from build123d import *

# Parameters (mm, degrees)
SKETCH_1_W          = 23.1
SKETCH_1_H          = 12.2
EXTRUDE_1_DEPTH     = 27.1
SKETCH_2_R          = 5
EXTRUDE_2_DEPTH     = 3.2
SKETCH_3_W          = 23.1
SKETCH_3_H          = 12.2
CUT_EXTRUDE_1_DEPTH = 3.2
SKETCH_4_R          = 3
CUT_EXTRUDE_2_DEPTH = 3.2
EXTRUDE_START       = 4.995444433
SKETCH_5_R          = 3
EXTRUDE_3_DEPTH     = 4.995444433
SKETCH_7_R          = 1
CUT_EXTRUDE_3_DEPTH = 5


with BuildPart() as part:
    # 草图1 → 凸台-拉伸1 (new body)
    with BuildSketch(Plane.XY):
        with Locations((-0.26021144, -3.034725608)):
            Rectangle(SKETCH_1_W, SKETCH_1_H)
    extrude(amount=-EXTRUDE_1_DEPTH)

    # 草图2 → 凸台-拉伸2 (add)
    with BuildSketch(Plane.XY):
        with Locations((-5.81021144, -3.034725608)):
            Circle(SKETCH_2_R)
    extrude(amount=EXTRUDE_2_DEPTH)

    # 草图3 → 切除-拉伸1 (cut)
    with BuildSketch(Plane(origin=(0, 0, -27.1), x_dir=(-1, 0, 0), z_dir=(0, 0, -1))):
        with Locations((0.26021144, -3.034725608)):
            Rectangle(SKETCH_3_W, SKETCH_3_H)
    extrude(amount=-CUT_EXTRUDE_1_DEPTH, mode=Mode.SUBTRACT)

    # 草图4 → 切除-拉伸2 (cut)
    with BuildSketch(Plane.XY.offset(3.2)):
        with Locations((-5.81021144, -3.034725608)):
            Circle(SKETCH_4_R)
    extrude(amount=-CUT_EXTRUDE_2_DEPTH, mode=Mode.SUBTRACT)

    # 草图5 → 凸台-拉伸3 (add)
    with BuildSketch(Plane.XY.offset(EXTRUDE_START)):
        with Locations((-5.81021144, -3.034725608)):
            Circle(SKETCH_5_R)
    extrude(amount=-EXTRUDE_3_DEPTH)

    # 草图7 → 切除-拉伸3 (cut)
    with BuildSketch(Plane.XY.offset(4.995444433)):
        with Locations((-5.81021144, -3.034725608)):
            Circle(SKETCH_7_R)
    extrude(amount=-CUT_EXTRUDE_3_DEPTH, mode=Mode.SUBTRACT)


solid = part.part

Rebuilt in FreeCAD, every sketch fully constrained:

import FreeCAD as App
import Part
import Sketcher
Q = App.Units.Quantity

doc = App.newDocument("Part")
body = doc.addObject("PartDesign::Body", "Body")

# Sketch on XY plane
sketch1 = doc.addObject("Sketcher::SketchObject", "Sketch")
body.addObject(sketch1)
sketch1.AttachmentSupport = (doc.XY_Plane, [""])
sketch1.MapMode = "FlatFace"
sketch1.addGeometry(Part.LineSegment(App.Vector(-11.810211, 3.065274, 0), App.Vector(-11.810211, -9.134726, 0)), False)
sketch1.addGeometry(Part.LineSegment(App.Vector(-11.810211, -9.134726, 0), App.Vector(11.289789, -9.134726, 0)), False)
sketch1.addGeometry(Part.LineSegment(App.Vector(11.289789, -9.134726, 0), App.Vector(11.289789, 3.065274, 0)), False)
sketch1.addGeometry(Part.LineSegment(App.Vector(11.289789, 3.065274, 0), App.Vector(-11.810211, 3.065274, 0)), False)
sketch1.addConstraint(Sketcher.Constraint("Coincident", 0, 2, 1, 1))
sketch1.addConstraint(Sketcher.Constraint("Coincident", 1, 2, 2, 1))
sketch1.addConstraint(Sketcher.Constraint("Coincident", 2, 2, 3, 1))
sketch1.addConstraint(Sketcher.Constraint("Coincident", 3, 2, 0, 1))
sketch1.addConstraint(Sketcher.Constraint("Vertical", 0))
sketch1.addConstraint(Sketcher.Constraint("Horizontal", 1))
sketch1.addConstraint(Sketcher.Constraint("Vertical", 2))
sketch1.addConstraint(Sketcher.Constraint("Horizontal", 3))
sketch1.addConstraint(Sketcher.Constraint("DistanceX", 1, 1, 1, 2, Q("23.1 mm")))
sketch1.addConstraint(Sketcher.Constraint("DistanceY", 0, 2, 0, 1, Q("12.2 mm")))
sketch1.addConstraint(Sketcher.Constraint("DistanceX", 0, 2, -1, 1, Q("11.810211 mm")))
sketch1.addConstraint(Sketcher.Constraint("DistanceY", 0, 2, -1, 1, Q("9.134726 mm")))
pad1 = doc.addObject("PartDesign::Pad", "Pad")
body.addObject(pad1)
pad1.Profile = sketch1
pad1.Length = 27.1
pad1.Reversed = True

# Sketch on XY plane
sketch2 = doc.addObject("Sketcher::SketchObject", "Sketch001")
body.addObject(sketch2)
sketch2.AttachmentSupport = (doc.XY_Plane, [""])
sketch2.MapMode = "FlatFace"
sketch2.addGeometry(Part.Circle(App.Vector(-5.810211, -3.034726, 0), App.Vector(0, 0, 1), 5), False)
sketch2.addConstraint(Sketcher.Constraint("Diameter", 0, Q("10 mm")))
sketch2.addConstraint(Sketcher.Constraint("DistanceX", 0, 3, -1, 1, Q("5.810211 mm")))
sketch2.addConstraint(Sketcher.Constraint("DistanceY", 0, 3, -1, 1, Q("3.034726 mm")))
pad2 = doc.addObject("PartDesign::Pad", "Pad001")
body.addObject(pad2)
pad2.Profile = sketch2
pad2.Length = 3.2

# Sketch on XY plane
sketch3 = doc.addObject("Sketcher::SketchObject", "Sketch002")
body.addObject(sketch3)
sketch3.AttachmentSupport = (doc.XY_Plane, [""])
sketch3.MapMode = "FlatFace"
sketch3.AttachmentOffset = App.Placement(App.Vector(0, 0, -27.1), App.Rotation())
sketch3.addGeometry(Part.LineSegment(App.Vector(11.289789, 3.065274, 0), App.Vector(11.289789, -9.134726, 0)), False)
sketch3.addGeometry(Part.LineSegment(App.Vector(11.289789, -9.134726, 0), App.Vector(-11.810211, -9.134726, 0)), False)
sketch3.addGeometry(Part.LineSegment(App.Vector(-11.810211, -9.134726, 0), App.Vector(-11.810211, 3.065274, 0)), False)
sketch3.addGeometry(Part.LineSegment(App.Vector(-11.810211, 3.065274, 0), App.Vector(11.289789, 3.065274, 0)), False)
sketch3.addConstraint(Sketcher.Constraint("Coincident", 0, 2, 1, 1))
sketch3.addConstraint(Sketcher.Constraint("Coincident", 1, 2, 2, 1))
sketch3.addConstraint(Sketcher.Constraint("Coincident", 2, 2, 3, 1))
sketch3.addConstraint(Sketcher.Constraint("Coincident", 3, 2, 0, 1))
sketch3.addConstraint(Sketcher.Constraint("Vertical", 0))
sketch3.addConstraint(Sketcher.Constraint("Horizontal", 1))
sketch3.addConstraint(Sketcher.Constraint("Vertical", 2))
sketch3.addConstraint(Sketcher.Constraint("Horizontal", 3))
sketch3.addConstraint(Sketcher.Constraint("DistanceX", 1, 2, 1, 1, Q("23.1 mm")))
sketch3.addConstraint(Sketcher.Constraint("DistanceY", 0, 2, 0, 1, Q("12.2 mm")))
sketch3.addConstraint(Sketcher.Constraint("DistanceX", -1, 1, 0, 2, Q("11.289789 mm")))
sketch3.addConstraint(Sketcher.Constraint("DistanceY", 0, 2, -1, 1, Q("9.134726 mm")))
pocket1 = doc.addObject("PartDesign::Pocket", "Pocket")
body.addObject(pocket1)
pocket1.Profile = sketch3
pocket1.Length = 3.2
pocket1.Reversed = True

# Sketch on XY plane
sketch4 = doc.addObject("Sketcher::SketchObject", "Sketch003")
body.addObject(sketch4)
sketch4.AttachmentSupport = (doc.XY_Plane, [""])
sketch4.MapMode = "FlatFace"
sketch4.AttachmentOffset = App.Placement(App.Vector(0, 0, 3.2), App.Rotation())
sketch4.addGeometry(Part.Circle(App.Vector(-5.810211, -3.034726, 0), App.Vector(0, 0, 1), 3), False)
sketch4.addConstraint(Sketcher.Constraint("Diameter", 0, Q("6 mm")))
sketch4.addConstraint(Sketcher.Constraint("DistanceX", 0, 3, -1, 1, Q("5.810211 mm")))
sketch4.addConstraint(Sketcher.Constraint("DistanceY", 0, 3, -1, 1, Q("3.034726 mm")))
pocket2 = doc.addObject("PartDesign::Pocket", "Pocket001")
body.addObject(pocket2)
pocket2.Profile = sketch4
pocket2.Length = 3.2

# Sketch on XY plane
sketch5 = doc.addObject("Sketcher::SketchObject", "Sketch004")
body.addObject(sketch5)
sketch5.AttachmentSupport = (doc.XY_Plane, [""])
sketch5.MapMode = "FlatFace"
sketch5.AttachmentOffset = App.Placement(App.Vector(0, 0, 4.995444), App.Rotation())
sketch5.addGeometry(Part.Circle(App.Vector(-5.810211, -3.034726, 0), App.Vector(0, 0, 1), 3), False)
sketch5.addConstraint(Sketcher.Constraint("Diameter", 0, Q("6 mm")))
sketch5.addConstraint(Sketcher.Constraint("DistanceX", 0, 3, -1, 1, Q("5.810211 mm")))
sketch5.addConstraint(Sketcher.Constraint("DistanceY", 0, 3, -1, 1, Q("3.034726 mm")))
pad3 = doc.addObject("PartDesign::Pad", "Pad002")
body.addObject(pad3)
pad3.Profile = sketch5
pad3.Length = 4.995444
pad3.Reversed = True

# Sketch on XY plane
sketch6 = doc.addObject("Sketcher::SketchObject", "Sketch005")
body.addObject(sketch6)
sketch6.AttachmentSupport = (doc.XY_Plane, [""])
sketch6.MapMode = "FlatFace"
sketch6.AttachmentOffset = App.Placement(App.Vector(0, 0, 4.995444), App.Rotation())
sketch6.addGeometry(Part.Circle(App.Vector(-5.810211, -3.034726, 0), App.Vector(0, 0, 1), 1), False)
sketch6.addConstraint(Sketcher.Constraint("Diameter", 0, Q("2 mm")))
sketch6.addConstraint(Sketcher.Constraint("DistanceX", 0, 3, -1, 1, Q("5.810211 mm")))
sketch6.addConstraint(Sketcher.Constraint("DistanceY", 0, 3, -1, 1, Q("3.034726 mm")))
pocket3 = doc.addObject("PartDesign::Pocket", "Pocket002")
body.addObject(pocket3)
pocket3.Profile = sketch6
pocket3.Length = 5

doc.recompute()
